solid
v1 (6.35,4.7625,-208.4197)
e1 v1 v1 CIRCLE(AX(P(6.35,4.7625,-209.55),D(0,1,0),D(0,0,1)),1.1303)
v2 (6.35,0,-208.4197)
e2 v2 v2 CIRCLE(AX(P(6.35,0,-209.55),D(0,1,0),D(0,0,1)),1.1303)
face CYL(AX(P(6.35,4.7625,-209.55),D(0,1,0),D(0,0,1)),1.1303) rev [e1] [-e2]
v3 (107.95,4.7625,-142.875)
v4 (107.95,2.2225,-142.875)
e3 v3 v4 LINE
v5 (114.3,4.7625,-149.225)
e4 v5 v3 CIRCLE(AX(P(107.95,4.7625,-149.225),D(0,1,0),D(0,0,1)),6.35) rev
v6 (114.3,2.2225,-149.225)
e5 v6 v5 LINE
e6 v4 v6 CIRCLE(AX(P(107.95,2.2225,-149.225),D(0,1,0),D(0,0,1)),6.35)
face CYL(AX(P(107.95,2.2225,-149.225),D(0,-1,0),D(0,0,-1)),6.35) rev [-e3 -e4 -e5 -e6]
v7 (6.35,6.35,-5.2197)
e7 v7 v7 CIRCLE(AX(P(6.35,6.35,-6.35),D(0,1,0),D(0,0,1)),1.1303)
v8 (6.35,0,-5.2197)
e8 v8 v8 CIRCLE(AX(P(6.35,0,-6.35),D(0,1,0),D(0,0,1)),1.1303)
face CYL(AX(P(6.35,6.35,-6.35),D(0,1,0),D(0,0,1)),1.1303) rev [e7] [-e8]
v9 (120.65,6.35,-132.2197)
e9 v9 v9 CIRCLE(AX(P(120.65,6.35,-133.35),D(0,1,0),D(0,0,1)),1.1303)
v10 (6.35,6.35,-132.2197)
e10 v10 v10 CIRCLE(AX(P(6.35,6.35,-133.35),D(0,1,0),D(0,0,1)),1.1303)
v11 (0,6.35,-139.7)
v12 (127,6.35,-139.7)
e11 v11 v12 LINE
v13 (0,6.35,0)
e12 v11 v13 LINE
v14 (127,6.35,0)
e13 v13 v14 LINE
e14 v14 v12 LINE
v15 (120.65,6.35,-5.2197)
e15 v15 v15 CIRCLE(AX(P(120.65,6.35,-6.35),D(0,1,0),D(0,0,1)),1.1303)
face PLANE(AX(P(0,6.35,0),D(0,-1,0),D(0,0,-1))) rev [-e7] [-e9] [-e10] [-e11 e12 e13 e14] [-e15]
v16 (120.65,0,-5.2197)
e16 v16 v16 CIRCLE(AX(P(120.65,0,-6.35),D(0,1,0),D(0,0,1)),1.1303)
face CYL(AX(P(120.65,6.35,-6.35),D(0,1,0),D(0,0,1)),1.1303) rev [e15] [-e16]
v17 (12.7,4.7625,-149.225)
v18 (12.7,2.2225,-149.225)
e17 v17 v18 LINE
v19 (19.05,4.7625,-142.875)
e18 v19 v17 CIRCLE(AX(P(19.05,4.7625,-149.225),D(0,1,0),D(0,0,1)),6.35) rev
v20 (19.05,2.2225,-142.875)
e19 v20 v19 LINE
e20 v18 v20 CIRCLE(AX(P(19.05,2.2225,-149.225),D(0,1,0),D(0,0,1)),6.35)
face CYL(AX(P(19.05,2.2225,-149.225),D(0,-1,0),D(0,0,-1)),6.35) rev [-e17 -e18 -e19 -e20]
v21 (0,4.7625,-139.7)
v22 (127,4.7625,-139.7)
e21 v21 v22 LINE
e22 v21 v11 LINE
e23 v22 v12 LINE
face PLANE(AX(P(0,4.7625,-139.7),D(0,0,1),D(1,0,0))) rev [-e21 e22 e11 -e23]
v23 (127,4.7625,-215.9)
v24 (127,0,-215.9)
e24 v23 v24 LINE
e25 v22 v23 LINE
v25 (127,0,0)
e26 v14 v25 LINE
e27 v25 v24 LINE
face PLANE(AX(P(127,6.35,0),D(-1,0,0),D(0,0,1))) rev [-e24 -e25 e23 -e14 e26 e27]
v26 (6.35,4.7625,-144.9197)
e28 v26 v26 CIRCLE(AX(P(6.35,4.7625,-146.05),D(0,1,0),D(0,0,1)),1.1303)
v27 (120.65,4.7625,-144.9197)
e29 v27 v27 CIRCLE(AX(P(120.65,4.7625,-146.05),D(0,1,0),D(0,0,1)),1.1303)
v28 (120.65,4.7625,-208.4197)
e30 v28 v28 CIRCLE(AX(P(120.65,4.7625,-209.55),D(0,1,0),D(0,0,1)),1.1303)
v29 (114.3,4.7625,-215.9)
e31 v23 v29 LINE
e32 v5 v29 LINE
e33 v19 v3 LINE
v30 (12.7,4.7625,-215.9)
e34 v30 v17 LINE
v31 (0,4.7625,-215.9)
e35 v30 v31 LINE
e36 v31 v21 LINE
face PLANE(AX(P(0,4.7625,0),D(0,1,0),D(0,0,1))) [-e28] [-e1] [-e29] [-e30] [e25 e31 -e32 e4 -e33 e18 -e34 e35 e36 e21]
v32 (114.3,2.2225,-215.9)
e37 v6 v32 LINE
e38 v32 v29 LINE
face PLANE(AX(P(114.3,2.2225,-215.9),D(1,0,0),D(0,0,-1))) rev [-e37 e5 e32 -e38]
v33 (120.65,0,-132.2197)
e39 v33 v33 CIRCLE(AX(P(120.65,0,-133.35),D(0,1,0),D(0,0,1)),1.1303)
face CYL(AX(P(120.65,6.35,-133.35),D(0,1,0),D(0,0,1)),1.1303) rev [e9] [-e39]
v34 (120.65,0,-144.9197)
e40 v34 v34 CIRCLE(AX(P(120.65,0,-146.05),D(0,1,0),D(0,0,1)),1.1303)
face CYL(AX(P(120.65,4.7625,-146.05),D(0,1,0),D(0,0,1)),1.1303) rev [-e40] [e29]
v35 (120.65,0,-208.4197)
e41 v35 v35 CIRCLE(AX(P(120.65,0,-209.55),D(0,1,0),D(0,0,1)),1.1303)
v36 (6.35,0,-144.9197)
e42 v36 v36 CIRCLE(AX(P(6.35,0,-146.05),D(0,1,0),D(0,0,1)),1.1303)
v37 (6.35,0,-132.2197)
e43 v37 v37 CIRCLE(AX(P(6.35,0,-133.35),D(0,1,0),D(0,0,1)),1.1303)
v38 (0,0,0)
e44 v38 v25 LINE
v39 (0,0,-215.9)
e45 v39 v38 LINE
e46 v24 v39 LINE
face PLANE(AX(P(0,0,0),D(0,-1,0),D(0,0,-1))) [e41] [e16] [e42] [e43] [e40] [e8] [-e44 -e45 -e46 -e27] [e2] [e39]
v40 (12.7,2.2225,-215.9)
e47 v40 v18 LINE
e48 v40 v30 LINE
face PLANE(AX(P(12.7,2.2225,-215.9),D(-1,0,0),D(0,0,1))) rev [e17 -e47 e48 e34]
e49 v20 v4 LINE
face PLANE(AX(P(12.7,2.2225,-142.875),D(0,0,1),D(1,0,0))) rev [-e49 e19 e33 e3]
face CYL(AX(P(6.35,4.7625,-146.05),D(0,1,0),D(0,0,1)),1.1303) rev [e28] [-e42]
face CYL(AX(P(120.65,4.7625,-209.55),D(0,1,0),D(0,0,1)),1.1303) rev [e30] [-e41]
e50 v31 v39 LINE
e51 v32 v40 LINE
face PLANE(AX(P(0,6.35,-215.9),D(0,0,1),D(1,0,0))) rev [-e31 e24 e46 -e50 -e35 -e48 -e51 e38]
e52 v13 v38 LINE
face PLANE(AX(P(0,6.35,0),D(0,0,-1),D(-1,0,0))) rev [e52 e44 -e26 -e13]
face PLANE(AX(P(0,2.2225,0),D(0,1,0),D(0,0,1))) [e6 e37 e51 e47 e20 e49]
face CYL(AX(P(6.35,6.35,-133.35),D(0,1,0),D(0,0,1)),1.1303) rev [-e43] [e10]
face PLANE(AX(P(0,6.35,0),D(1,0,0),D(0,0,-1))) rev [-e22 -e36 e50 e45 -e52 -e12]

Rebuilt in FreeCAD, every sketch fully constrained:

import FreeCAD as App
import Part
import Sketcher
from FreeCAD import Vector
Q = App.Units.Quantity


def edges_at(feature, points):
    """Names of the edges that pass closest to the given points."""
    edges = feature.Shape.Edges
    near = lambda p: min(range(len(edges)), key=lambda i: edges[i].distToShape(Part.Vertex(*p))[0])
    return sorted({f"Edge{near(p) + 1}" for p in points})


def add_polygon(sketch, points):
    """Adds a closed chain of lines whose ends are joined by coincident constraints."""
    first, n = sketch.GeometryCount, len(points)
    for a, b in zip(points, points[1:] + points[:1]):
        sketch.addGeometry(Part.LineSegment(App.Vector(*a, 0), App.Vector(*b, 0)), False)
    for i in range(n):
        sketch.addConstraint(Sketcher.Constraint("Coincident", first + i, 2, first + (i + 1) % n, 1))

doc = App.newDocument("Part")
body = doc.addObject("PartDesign::Body", "Body")

# Sketch on XZ plane
sketch1 = body.newObject("Sketcher::SketchObject", "Sketch")
sketch1.AttachmentSupport = (doc.getObject("XZ_Plane"), [""])
sketch1.MapMode = "FlatFace"
add_polygon(sketch1, [(0, -216), (0, 0), (127, 0), (127, -216)])  # lines 0-3
sketch1.addConstraint([
    Sketcher.Constraint("Vertical", 0),
    Sketcher.Constraint("Horizontal", 1),
    Sketcher.Constraint("Vertical", 2),
    Sketcher.Constraint("Horizontal", 3),
    Sketcher.Constraint("Coincident", 0, 2, -1, 1),
    Sketcher.Constraint("DistanceX", 1, 1, 1, 2, Q("5 in")),
    Sketcher.Constraint("DistanceY", 0, 1, 0, 2, Q("8.5 in")),
])
pad1 = body.newObject("PartDesign::Pad", "Pad")
pad1.Profile = sketch1
pad1.Length = Q("0.25 in")
pad1.Reversed = True

# Sketch on XZ plane
sketch2 = body.newObject("Sketcher::SketchObject", "Sketch001")
sketch2.AttachmentSupport = (doc.getObject("XZ_Plane"), [""])
sketch2.MapMode = "FlatFace"
sketch2.AttachmentOffset = App.Placement(Vector(0, 0, -0.25 * 25.4), App.Rotation())
add_polygon(sketch2, [(0, -216), (0, -140), (127, -140), (127, -216)])  # lines 0-3
sketch2.addConstraint([
    Sketcher.Constraint("Vertical", 0),
    Sketcher.Constraint("Horizontal", 1),
    Sketcher.Constraint("Vertical", 2),
    Sketcher.Constraint("Horizontal", 3),
    Sketcher.Constraint("PointOnObject", 0, 2, -2),
    Sketcher.Constraint("DistanceX", 1, 1, 1, 2, Q("5 in")),
    Sketcher.Constraint("DistanceY", 0, 1, 0, 2, Q("3 in")),
    Sketcher.Constraint("DistanceY", 0, 2, -1, 1, Q("5.5 in")),
])
pocket1 = body.newObject("PartDesign::Pocket", "Pocket")
pocket1.Profile = sketch2
pocket1.Length = Q("0.0625 in")
pocket1.Reversed = True

# Sketch on XZ plane
sketch3 = body.newObject("Sketcher::SketchObject", "Sketch002")
sketch3.AttachmentSupport = (doc.getObject("XZ_Plane"), [""])
sketch3.MapMode = "FlatFace"
sketch3.AttachmentOffset = App.Placement(Vector(0, 0, -0.1875 * 25.4), App.Rotation())
sketch3.addGeometry([
    Part.Circle(Vector(6.3, -209.6, 0), Vector(0, 0, 1), 1.1),
    Part.Circle(Vector(6.3, -146.1, 0), Vector(0, 0, 1), 1.1),
    Part.Circle(Vector(120.7, -146.1, 0), Vector(0, 0, 1), 1.1),
    Part.Circle(Vector(120.7, -209.6, 0), Vector(0, 0, 1), 1.1),
], False)
sketch3.addConstraint([
    Sketcher.Constraint("Equal", 0, 1),
    Sketcher.Constraint("Equal", 1, 2),
    Sketcher.Constraint("Equal", 2, 3),
    Sketcher.Constraint("Horizontal", 1, 3, 2, 3),
    Sketcher.Constraint("Horizontal", 0, 3, 3, 3),
    Sketcher.Constraint("Vertical", 0, 3, 1, 3),
    Sketcher.Constraint("Vertical", 2, 3, 3, 3),
    Sketcher.Constraint("Diameter", 0, Q("0.089 in")),
    Sketcher.Constraint("DistanceY", 0, 3, 1, 3, Q("2.5 in")),
    Sketcher.Constraint("DistanceX", 1, 3, 2, 3, Q("4.5 in")),
    Sketcher.Constraint("DistanceX", -1, 1, 0, 3, Q("0.25 in")),
    Sketcher.Constraint("DistanceY", 0, 3, -1, 1, Q("8.25 in")),
])
doc.recompute()
hole = body.newObject("PartDesign::Hole", "Hole")
hole.Profile = sketch3
hole.ThreadType = "None"
hole.Diameter = Q("0.089 in")
hole.DepthType = "ThroughAll"
hole.Reversed = True

# Sketch on XZ plane
sketch4 = body.newObject("Sketcher::SketchObject", "Sketch003")
sketch4.AttachmentSupport = (doc.getObject("XZ_Plane"), [""])
sketch4.MapMode = "FlatFace"
sketch4.AttachmentOffset = App.Placement(Vector(0, 0, -0.25 * 25.4), App.Rotation())
sketch4.addGeometry([
    Part.Circle(Vector(6.3, -6.3, 0), Vector(0, 0, 1), 1.1),
    Part.Circle(Vector(120.7, -6.3, 0), Vector(0, 0, 1), 1.1),
    Part.Circle(Vector(6.3, -133.3, 0), Vector(0, 0, 1), 1.1),
    Part.Circle(Vector(120.7, -133.3, 0), Vector(0, 0, 1), 1.1),
], False)
sketch4.addConstraint([
    Sketcher.Constraint("Equal", 0, 1),
    Sketcher.Constraint("Equal", 1, 2),
    Sketcher.Constraint("Equal", 2, 3),
    Sketcher.Constraint("Horizontal", 0, 3, 1, 3),
    Sketcher.Constraint("Horizontal", 2, 3, 3, 3),
    Sketcher.Constraint("Vertical", 0, 3, 2, 3),
    Sketcher.Constraint("Vertical", 1, 3, 3, 3),
    Sketcher.Constraint("Diameter", 0, Q("0.089 in")),
    Sketcher.Constraint("DistanceY", 2, 3, 0, 3, Q("5 in")),
    Sketcher.Constraint("DistanceX", 0, 3, 1, 3, Q("4.5 in")),
    Sketcher.Constraint("DistanceX", -1, 1, 0, 3, Q("0.25 in")),
    Sketcher.Constraint("DistanceY", 0, 3, -1, 1, Q("0.25 in")),
])
doc.recompute()
hole2 = body.newObject("PartDesign::Hole", "Hole001")
hole2.Profile = sketch4
hole2.ThreadType = "None"
hole2.Diameter = Q("0.089 in")
hole2.DepthType = "ThroughAll"
hole2.Reversed = True

# Sketch on XZ plane
sketch5 = body.newObject("Sketcher::SketchObject", "Sketch004")
sketch5.AttachmentSupport = (doc.getObject("XZ_Plane"), [""])
sketch5.MapMode = "FlatFace"
sketch5.AttachmentOffset = App.Placement(Vector(0, 0, -0.1875 * 25.4), App.Rotation())
add_polygon(sketch5, [(13, -216), (13, -143), (114, -143), (114, -216)])  # lines 0-3
sketch5.addConstraint([
    Sketcher.Constraint("Vertical", 0),
    Sketcher.Constraint("Horizontal", 1),
    Sketcher.Constraint("Vertical", 2),
    Sketcher.Constraint("Horizontal", 3),
    Sketcher.Constraint("DistanceX", 1, 1, 1, 2, Q("4 in")),
    Sketcher.Constraint("DistanceX", -1, 1, 0, 2, Q("0.5 in")),
    Sketcher.Constraint("DistanceY", 2, 2, -1, 1, Q("8.5 in")),
    Sketcher.Constraint("DistanceY", 0, 1, 0, 2, Q("2.875 in")),
])
pocket2 = body.newObject("PartDesign::Pocket", "Pocket001")
pocket2.Profile = sketch5
pocket2.Length = Q("0.1 in")
pocket2.Reversed = True
doc.recompute()

fillet = body.newObject("PartDesign::Fillet", "Fillet")
fillet.Base = (pocket2, edges_at(pocket2, [(12.7, 3.493, -142.875), (114.3, 3.493, -142.875)]))
fillet.Radius = Q("0.25 in")

doc.recompute()
